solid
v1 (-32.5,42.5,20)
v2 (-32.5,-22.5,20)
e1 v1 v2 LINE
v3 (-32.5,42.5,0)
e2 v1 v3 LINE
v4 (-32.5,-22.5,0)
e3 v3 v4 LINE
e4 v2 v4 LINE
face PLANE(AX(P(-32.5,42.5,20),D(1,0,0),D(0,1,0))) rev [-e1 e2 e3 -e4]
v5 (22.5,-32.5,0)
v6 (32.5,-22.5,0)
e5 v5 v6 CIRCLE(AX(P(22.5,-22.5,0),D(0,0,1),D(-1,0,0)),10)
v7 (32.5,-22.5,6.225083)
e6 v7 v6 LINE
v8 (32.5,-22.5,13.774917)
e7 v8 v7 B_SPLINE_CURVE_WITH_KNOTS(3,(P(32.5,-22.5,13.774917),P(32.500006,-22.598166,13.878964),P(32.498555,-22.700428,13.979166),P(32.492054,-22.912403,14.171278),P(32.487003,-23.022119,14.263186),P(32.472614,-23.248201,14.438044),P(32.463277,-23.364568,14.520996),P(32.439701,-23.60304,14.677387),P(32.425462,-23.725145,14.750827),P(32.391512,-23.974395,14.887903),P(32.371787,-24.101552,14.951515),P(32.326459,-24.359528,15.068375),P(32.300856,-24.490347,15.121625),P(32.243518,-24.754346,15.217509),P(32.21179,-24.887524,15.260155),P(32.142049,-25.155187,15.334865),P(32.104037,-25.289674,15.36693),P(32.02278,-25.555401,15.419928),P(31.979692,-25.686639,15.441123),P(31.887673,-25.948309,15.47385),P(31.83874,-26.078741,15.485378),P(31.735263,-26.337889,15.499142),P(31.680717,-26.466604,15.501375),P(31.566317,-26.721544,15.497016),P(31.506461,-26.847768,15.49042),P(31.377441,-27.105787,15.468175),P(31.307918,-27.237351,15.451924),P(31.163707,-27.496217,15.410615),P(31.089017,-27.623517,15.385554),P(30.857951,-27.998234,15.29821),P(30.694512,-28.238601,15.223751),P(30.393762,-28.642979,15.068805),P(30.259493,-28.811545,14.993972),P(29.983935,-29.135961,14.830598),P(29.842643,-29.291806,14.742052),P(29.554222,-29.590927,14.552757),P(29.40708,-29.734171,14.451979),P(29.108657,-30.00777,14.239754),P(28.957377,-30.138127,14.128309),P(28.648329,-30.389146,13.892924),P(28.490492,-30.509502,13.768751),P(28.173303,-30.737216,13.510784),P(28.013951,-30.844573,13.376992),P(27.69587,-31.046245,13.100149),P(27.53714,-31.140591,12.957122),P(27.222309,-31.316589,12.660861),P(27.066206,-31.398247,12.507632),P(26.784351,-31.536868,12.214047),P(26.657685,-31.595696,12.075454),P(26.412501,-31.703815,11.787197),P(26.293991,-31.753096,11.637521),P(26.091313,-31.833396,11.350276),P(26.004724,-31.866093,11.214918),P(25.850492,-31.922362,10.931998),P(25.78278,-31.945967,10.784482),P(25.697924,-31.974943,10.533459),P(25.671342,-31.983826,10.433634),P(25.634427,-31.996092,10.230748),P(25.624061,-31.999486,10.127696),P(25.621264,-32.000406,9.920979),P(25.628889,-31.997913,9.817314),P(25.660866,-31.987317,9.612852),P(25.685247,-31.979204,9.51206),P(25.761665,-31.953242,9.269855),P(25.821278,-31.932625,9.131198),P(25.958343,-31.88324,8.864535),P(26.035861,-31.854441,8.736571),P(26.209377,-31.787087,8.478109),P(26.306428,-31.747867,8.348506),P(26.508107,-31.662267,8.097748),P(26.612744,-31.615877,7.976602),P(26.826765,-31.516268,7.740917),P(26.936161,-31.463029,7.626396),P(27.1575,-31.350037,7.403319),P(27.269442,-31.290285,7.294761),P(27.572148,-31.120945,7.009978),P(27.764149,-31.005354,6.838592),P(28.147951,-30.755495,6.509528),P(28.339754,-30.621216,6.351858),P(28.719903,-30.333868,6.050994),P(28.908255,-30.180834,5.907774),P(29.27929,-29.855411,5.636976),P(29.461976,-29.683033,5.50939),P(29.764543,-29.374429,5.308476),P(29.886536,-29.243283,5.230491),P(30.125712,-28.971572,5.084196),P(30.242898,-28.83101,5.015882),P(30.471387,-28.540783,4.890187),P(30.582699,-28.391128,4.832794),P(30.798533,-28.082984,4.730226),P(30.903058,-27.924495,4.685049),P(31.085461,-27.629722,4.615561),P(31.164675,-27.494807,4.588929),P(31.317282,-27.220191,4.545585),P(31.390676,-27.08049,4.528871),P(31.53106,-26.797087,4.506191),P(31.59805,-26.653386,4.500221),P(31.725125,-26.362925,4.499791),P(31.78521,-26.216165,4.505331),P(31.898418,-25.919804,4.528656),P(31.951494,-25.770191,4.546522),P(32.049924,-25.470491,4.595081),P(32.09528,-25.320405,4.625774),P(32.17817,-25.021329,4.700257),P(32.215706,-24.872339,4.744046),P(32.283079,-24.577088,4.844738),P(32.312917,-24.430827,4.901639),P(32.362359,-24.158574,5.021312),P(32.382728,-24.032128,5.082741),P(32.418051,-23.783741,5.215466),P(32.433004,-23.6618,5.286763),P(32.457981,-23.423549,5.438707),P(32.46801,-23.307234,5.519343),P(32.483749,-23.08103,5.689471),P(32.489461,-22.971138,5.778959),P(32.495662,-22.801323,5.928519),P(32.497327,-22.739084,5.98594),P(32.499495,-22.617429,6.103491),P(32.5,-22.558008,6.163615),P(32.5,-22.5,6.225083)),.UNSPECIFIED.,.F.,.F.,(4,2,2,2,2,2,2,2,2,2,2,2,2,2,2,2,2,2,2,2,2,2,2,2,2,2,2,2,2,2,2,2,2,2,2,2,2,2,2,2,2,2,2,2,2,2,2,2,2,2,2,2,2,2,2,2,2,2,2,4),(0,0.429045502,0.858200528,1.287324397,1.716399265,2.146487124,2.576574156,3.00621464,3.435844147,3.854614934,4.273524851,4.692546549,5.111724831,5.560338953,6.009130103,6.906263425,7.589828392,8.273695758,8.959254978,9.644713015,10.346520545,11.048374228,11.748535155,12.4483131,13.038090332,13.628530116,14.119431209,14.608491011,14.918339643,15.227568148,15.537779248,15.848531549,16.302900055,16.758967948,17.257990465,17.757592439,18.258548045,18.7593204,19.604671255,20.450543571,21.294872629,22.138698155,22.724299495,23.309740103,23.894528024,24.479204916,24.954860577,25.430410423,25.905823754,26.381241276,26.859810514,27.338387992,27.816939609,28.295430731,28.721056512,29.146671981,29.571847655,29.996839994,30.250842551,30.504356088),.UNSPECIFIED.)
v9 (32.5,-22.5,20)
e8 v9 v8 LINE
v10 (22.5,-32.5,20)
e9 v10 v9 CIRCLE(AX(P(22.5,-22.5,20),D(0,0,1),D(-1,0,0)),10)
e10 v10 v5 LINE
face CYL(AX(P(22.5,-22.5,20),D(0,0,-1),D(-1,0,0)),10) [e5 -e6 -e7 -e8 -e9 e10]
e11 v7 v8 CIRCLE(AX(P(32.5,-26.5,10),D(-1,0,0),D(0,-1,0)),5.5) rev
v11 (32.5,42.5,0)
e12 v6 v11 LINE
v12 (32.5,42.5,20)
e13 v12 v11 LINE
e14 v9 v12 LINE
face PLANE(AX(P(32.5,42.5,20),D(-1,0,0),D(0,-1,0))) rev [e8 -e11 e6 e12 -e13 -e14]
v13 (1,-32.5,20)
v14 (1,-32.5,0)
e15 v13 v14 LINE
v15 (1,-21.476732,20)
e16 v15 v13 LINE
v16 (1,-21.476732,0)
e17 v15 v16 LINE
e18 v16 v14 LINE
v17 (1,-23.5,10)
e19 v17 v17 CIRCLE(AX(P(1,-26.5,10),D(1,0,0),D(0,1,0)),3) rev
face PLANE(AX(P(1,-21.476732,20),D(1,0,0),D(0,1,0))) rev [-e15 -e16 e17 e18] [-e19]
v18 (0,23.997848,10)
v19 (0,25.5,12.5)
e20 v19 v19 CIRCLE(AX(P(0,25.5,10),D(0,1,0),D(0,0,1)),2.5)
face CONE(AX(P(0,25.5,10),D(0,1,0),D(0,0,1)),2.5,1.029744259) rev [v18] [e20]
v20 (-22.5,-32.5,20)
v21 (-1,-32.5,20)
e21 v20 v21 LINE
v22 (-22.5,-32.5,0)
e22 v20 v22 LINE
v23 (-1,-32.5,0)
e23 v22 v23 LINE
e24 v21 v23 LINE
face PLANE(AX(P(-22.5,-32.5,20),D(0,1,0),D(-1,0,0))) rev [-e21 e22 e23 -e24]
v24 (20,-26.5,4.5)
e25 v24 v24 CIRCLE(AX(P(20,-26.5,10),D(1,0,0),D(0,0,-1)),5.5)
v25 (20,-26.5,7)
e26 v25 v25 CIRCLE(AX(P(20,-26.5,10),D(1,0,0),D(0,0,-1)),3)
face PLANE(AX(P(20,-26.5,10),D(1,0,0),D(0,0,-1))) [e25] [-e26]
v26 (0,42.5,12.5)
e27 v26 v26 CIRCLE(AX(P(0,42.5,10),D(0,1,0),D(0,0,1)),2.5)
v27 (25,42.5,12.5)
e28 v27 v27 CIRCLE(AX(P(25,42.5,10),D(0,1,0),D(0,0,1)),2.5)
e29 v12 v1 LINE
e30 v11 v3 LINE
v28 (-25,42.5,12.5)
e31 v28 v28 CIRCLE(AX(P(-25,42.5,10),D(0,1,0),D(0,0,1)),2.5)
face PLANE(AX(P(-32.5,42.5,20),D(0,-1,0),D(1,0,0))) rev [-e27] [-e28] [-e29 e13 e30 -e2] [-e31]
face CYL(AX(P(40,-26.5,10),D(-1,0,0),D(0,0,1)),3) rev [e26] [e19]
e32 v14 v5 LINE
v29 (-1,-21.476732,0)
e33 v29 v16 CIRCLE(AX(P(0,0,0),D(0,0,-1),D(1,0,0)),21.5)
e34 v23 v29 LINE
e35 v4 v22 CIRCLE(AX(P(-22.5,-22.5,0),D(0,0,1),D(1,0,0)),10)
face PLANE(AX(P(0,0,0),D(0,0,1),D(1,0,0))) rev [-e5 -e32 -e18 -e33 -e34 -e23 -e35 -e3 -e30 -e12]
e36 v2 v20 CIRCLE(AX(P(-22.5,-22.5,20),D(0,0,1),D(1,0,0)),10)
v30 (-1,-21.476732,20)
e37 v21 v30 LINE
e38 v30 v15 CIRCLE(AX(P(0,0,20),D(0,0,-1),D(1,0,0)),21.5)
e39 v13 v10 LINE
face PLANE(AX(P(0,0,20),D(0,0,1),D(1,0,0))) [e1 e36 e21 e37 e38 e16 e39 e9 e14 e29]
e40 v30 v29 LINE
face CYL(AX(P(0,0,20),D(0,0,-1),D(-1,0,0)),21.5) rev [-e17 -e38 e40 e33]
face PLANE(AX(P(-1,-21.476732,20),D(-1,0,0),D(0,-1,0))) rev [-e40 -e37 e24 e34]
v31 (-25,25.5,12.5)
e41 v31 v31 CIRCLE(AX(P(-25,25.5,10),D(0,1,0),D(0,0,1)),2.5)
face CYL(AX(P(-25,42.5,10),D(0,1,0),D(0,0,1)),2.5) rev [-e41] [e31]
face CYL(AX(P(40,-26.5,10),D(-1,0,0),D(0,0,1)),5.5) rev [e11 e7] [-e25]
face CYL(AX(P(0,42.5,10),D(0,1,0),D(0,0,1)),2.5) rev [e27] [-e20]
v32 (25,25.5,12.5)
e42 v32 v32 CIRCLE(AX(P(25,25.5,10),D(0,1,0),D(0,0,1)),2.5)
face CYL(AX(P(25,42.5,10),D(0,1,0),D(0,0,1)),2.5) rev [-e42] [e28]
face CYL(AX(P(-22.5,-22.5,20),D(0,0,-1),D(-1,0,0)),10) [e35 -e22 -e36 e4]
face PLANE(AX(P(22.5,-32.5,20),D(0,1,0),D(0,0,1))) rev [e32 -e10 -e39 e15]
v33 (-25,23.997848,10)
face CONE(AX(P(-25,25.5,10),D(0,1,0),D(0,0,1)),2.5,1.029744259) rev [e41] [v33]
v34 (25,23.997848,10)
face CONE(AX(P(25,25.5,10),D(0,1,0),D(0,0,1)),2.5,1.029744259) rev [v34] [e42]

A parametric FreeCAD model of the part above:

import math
import FreeCAD as App
import Part
import Sketcher

V = App.Vector

doc = App.newDocument("Part")
body = doc.addObject("PartDesign::Body", "Body")

sketch1 = body.newObject("Sketcher::SketchObject", "Sketch")
sketch1.AttachmentSupport = (doc.getObject("XY_Plane"), [""])
sketch1.MapMode = "FlatFace"
sketch1.addGeometry(Part.LineSegment(V(32.5, 42.5, 0), V(-32.5, 42.5, 0)), False)
sketch1.addGeometry(Part.LineSegment(V(-32.5, 42.5, 0), V(-32.5, -22.5, 0)), False)
sketch1.addGeometry(Part.ArcOfCircle(Part.Circle(V(-22.5, -22.5, 0), V(0, 0, 1), 10), math.radians(180), math.radians(270)), False)
sketch1.addGeometry(Part.LineSegment(V(-22.5, -32.5, 0), V(-1, -32.5, 0)), False)
sketch1.addGeometry(Part.LineSegment(V(-1, -32.5, 0), V(-1, -21.476732, 0)), False)
sketch1.addGeometry(Part.ArcOfCircle(Part.Circle(V(0, 0, 0), V(0, 0, 1), 21.5), math.radians(-87.334118), math.radians(267.334118)), False)
sketch1.addGeometry(Part.LineSegment(V(1, -21.476732, 0), V(1, -32.5, 0)), False)
sketch1.addGeometry(Part.LineSegment(V(1, -32.5, 0), V(22.5, -32.5, 0)), False)
sketch1.addGeometry(Part.ArcOfCircle(Part.Circle(V(22.5, -22.5, 0), V(0, 0, 1), 10), math.radians(-90), math.radians(0)), False)
sketch1.addGeometry(Part.LineSegment(V(32.5, -22.5, 0), V(32.5, 42.5, 0)), False)
sketch1.addConstraint(Sketcher.Constraint("Coincident", 0, 2, 1, 1))
sketch1.addConstraint(Sketcher.Constraint("Tangent", 1, 2, 2, 1))
sketch1.addConstraint(Sketcher.Constraint("Tangent", 2, 2, 3, 1))
sketch1.addConstraint(Sketcher.Constraint("Coincident", 3, 2, 4, 1))
sketch1.addConstraint(Sketcher.Constraint("Coincident", 4, 2, 5, 2))
sketch1.addConstraint(Sketcher.Constraint("Coincident", 5, 1, 6, 1))
sketch1.addConstraint(Sketcher.Constraint("Coincident", 6, 2, 7, 1))
sketch1.addConstraint(Sketcher.Constraint("Tangent", 7, 2, 8, 1))
sketch1.addConstraint(Sketcher.Constraint("Tangent", 8, 2, 9, 1))
sketch1.addConstraint(Sketcher.Constraint("Coincident", 9, 2, 0, 1))
sketch1.addConstraint(Sketcher.Constraint("Horizontal", 0))
sketch1.addConstraint(Sketcher.Constraint("Vertical", 1))
sketch1.addConstraint(Sketcher.Constraint("Horizontal", 3))
sketch1.addConstraint(Sketcher.Constraint("Vertical", 4))
sketch1.addConstraint(Sketcher.Constraint("Vertical", 6))
sketch1.addConstraint(Sketcher.Constraint("Horizontal", 7))
sketch1.addConstraint(Sketcher.Constraint("Vertical", 9))
sketch1.addConstraint(Sketcher.Constraint("Coincident", 5, 3, -1, 1))
sketch1.addConstraint(Sketcher.Constraint("Equal", 2, 8))
sketch1.addConstraint(Sketcher.Constraint("Symmetric", 2, 3, 8, 3, -2))
sketch1.addConstraint(Sketcher.Constraint("Horizontal", 4, 2, 5, 1))
sketch1.addConstraint(Sketcher.Constraint("Equal", 0, 1))
sketch1.addConstraint(Sketcher.Constraint("Radius", 2, 10.0))
sketch1.addConstraint(Sketcher.Constraint("Radius", 5, 21.5))
sketch1.addConstraint(Sketcher.Constraint("DistanceX", 0, 2, 0, 1, 65.0))
sketch1.addConstraint(Sketcher.Constraint("DistanceX", 3, 1, 3, 2, 21.5))
sketch1.addConstraint(Sketcher.Constraint("DistanceY", 2, 3, -1, 1, 22.5))
pad1 = body.newObject("PartDesign::Pad", "Pad")
pad1.Profile = sketch1
pad1.Length = 20

sketch2 = body.newObject("Sketcher::SketchObject", "Sketch001")
sketch2.AttachmentSupport = (doc.getObject("XZ_Plane"), [""])
sketch2.MapMode = "FlatFace"
sketch2.AttachmentOffset = App.Placement(V(0, 0, -42.5), App.Rotation())
sketch2.addGeometry(Part.Circle(V(-25, 10, 0), V(0, 0, 1), 2.5), False)
sketch2.addGeometry(Part.Circle(V(0, 10, 0), V(0, 0, 1), 2.5), False)
sketch2.addGeometry(Part.Circle(V(25, 10, 0), V(0, 0, 1), 2.5), False)
sketch2.addConstraint(Sketcher.Constraint("Equal", 0, 1))
sketch2.addConstraint(Sketcher.Constraint("Equal", 1, 2))
sketch2.addConstraint(Sketcher.Constraint("Symmetric", 0, 3, 2, 3, -2))
sketch2.addConstraint(Sketcher.Constraint("PointOnObject", 1, 3, -2))
sketch2.addConstraint(Sketcher.Constraint("Horizontal", 0, 3, 1, 3))
sketch2.addConstraint(Sketcher.Constraint("Diameter", 0, 5.0))
sketch2.addConstraint(Sketcher.Constraint("DistanceX", 0, 3, -1, 1, 25.0))
sketch2.addConstraint(Sketcher.Constraint("DistanceY", -1, 1, 0, 3, 10.0))
doc.recompute()
hole = body.newObject("PartDesign::Hole", "Hole")
hole.Profile = sketch2
hole.ThreadType = "None"
hole.Diameter = 5
hole.DepthType = "Dimension"
hole.Depth = 17
hole.DrillPoint = "Angled"
hole.DrillPointAngle = 118
hole.Reversed = True

sketch3 = body.newObject("Sketcher::SketchObject", "Sketch002")
sketch3.AttachmentSupport = (doc.getObject("YZ_Plane"), [""])
sketch3.MapMode = "FlatFace"
sketch3.addGeometry(Part.Circle(V(-26.5, 10, 0), V(0, 0, 1), 3), False)
sketch3.addConstraint(Sketcher.Constraint("Diameter", 0, 6.0))
sketch3.addConstraint(Sketcher.Constraint("DistanceY", -1, 1, 0, 3, 10.0))
sketch3.addConstraint(Sketcher.Constraint("DistanceX", 0, 3, -1, 1, 26.5))
pocket1 = body.newObject("PartDesign::Pocket", "Pocket")
pocket1.Profile = sketch3
pocket1.Length = 40
pocket1.Reversed = True

sketch4 = body.newObject("Sketcher::SketchObject", "Sketch003")
sketch4.AttachmentSupport = (doc.getObject("YZ_Plane"), [""])
sketch4.MapMode = "FlatFace"
sketch4.AttachmentOffset = App.Placement(V(0, 0, 20), App.Rotation())
sketch4.addGeometry(Part.Circle(V(-26.5, 10, 0), V(0, 0, 1), 5.5), False)
sketch4.addConstraint(Sketcher.Constraint("Diameter", 0, 11.0))
sketch4.addConstraint(Sketcher.Constraint("DistanceY", -1, 1, 0, 3, 10.0))
sketch4.addConstraint(Sketcher.Constraint("DistanceX", 0, 3, -1, 1, 26.5))
pocket2 = body.newObject("PartDesign::Pocket", "Pocket001")
pocket2.Profile = sketch4
pocket2.Length = 20
pocket2.Reversed = True

doc.recompute()
